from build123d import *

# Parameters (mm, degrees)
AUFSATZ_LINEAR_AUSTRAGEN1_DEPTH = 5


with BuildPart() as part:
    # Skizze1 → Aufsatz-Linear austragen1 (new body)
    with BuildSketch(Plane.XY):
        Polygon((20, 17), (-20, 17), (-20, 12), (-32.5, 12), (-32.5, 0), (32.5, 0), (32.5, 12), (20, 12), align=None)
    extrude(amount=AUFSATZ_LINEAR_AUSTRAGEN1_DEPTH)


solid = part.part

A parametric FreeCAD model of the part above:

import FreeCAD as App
import Part
import Sketcher

doc = App.newDocument("Part")
body = doc.addObject("PartDesign::Body", "Body")

# Sketch on XY plane
sketch1 = body.newObject("Sketcher::SketchObject", "Sketch")
sketch1.AttachmentSupport = (doc.getObject("XY_Plane"), [""])
sketch1.MapMode = "FlatFace"
sketch1.addGeometry(Part.LineSegment(App.Vector(20, 17, 0), App.Vector(-20, 17, 0)), False)
sketch1.addGeometry(Part.LineSegment(App.Vector(-20, 17, 0), App.Vector(-20, 12, 0)), False)
sketch1.addGeometry(Part.LineSegment(App.Vector(-20, 12, 0), App.Vector(-32, 12, 0)), False)
sketch1.addGeometry(Part.LineSegment(App.Vector(-32, 12, 0), App.Vector(-32, 0, 0)), False)
sketch1.addGeometry(Part.LineSegment(App.Vector(-32, 0, 0), App.Vector(32, 0, 0)), False)
sketch1.addGeometry(Part.LineSegment(App.Vector(32, 0, 0), App.Vector(32, 12, 0)), False)
sketch1.addGeometry(Part.LineSegment(App.Vector(32, 12, 0), App.Vector(20, 12, 0)), False)
sketch1.addGeometry(Part.LineSegment(App.Vector(20, 12, 0), App.Vector(20, 17, 0)), False)
sketch1.addConstraint(Sketcher.Constraint("Coincident", 0, 2, 1, 1))
sketch1.addConstraint(Sketcher.Constraint("Coincident", 1, 2, 2, 1))
sketch1.addConstraint(Sketcher.Constraint("Coincident", 2, 2, 3, 1))
sketch1.addConstraint(Sketcher.Constraint("Coincident", 3, 2, 4, 1))
sketch1.addConstraint(Sketcher.Constraint("Coincident", 4, 2, 5, 1))
sketch1.addConstraint(Sketcher.Constraint("Coincident", 5, 2, 6, 1))
sketch1.addConstraint(Sketcher.Constraint("Coincident", 6, 2, 7, 1))
sketch1.addConstraint(Sketcher.Constraint("Coincident", 7, 2, 0, 1))
sketch1.addConstraint(Sketcher.Constraint("Horizontal", 0))
sketch1.addConstraint(Sketcher.Constraint("Vertical", 1))
sketch1.addConstraint(Sketcher.Constraint("Horizontal", 2))
sketch1.addConstraint(Sketcher.Constraint("Vertical", 3))
sketch1.addConstraint(Sketcher.Constraint("Horizontal", 4))
sketch1.addConstraint(Sketcher.Constraint("Vertical", 5))
sketch1.addConstraint(Sketcher.Constraint("Horizontal", 6))
sketch1.addConstraint(Sketcher.Constraint("Vertical", 7))
sketch1.addConstraint(Sketcher.Constraint("Symmetric", 3, 2, 4, 2, -1, 1))
sketch1.addConstraint(Sketcher.Constraint("Symmetric", 1, 2, 6, 2, -2))
sketch1.addConstraint(Sketcher.Constraint("DistanceX", 0, 2, 0, 1, 40.0))
sketch1.addConstraint(Sketcher.Constraint("DistanceX", 4, 1, 4, 2, 65.0))
sketch1.addConstraint(Sketcher.Constraint("DistanceY", 1, 2, 1, 1, 5.0))
sketch1.addConstraint(Sketcher.Constraint("DistanceY", 3, 2, 3, 1, 12.0))
pad1 = body.newObject("PartDesign::Pad", "Pad")
pad1.Profile = sketch1
pad1.Length = 5

doc.recompute()
